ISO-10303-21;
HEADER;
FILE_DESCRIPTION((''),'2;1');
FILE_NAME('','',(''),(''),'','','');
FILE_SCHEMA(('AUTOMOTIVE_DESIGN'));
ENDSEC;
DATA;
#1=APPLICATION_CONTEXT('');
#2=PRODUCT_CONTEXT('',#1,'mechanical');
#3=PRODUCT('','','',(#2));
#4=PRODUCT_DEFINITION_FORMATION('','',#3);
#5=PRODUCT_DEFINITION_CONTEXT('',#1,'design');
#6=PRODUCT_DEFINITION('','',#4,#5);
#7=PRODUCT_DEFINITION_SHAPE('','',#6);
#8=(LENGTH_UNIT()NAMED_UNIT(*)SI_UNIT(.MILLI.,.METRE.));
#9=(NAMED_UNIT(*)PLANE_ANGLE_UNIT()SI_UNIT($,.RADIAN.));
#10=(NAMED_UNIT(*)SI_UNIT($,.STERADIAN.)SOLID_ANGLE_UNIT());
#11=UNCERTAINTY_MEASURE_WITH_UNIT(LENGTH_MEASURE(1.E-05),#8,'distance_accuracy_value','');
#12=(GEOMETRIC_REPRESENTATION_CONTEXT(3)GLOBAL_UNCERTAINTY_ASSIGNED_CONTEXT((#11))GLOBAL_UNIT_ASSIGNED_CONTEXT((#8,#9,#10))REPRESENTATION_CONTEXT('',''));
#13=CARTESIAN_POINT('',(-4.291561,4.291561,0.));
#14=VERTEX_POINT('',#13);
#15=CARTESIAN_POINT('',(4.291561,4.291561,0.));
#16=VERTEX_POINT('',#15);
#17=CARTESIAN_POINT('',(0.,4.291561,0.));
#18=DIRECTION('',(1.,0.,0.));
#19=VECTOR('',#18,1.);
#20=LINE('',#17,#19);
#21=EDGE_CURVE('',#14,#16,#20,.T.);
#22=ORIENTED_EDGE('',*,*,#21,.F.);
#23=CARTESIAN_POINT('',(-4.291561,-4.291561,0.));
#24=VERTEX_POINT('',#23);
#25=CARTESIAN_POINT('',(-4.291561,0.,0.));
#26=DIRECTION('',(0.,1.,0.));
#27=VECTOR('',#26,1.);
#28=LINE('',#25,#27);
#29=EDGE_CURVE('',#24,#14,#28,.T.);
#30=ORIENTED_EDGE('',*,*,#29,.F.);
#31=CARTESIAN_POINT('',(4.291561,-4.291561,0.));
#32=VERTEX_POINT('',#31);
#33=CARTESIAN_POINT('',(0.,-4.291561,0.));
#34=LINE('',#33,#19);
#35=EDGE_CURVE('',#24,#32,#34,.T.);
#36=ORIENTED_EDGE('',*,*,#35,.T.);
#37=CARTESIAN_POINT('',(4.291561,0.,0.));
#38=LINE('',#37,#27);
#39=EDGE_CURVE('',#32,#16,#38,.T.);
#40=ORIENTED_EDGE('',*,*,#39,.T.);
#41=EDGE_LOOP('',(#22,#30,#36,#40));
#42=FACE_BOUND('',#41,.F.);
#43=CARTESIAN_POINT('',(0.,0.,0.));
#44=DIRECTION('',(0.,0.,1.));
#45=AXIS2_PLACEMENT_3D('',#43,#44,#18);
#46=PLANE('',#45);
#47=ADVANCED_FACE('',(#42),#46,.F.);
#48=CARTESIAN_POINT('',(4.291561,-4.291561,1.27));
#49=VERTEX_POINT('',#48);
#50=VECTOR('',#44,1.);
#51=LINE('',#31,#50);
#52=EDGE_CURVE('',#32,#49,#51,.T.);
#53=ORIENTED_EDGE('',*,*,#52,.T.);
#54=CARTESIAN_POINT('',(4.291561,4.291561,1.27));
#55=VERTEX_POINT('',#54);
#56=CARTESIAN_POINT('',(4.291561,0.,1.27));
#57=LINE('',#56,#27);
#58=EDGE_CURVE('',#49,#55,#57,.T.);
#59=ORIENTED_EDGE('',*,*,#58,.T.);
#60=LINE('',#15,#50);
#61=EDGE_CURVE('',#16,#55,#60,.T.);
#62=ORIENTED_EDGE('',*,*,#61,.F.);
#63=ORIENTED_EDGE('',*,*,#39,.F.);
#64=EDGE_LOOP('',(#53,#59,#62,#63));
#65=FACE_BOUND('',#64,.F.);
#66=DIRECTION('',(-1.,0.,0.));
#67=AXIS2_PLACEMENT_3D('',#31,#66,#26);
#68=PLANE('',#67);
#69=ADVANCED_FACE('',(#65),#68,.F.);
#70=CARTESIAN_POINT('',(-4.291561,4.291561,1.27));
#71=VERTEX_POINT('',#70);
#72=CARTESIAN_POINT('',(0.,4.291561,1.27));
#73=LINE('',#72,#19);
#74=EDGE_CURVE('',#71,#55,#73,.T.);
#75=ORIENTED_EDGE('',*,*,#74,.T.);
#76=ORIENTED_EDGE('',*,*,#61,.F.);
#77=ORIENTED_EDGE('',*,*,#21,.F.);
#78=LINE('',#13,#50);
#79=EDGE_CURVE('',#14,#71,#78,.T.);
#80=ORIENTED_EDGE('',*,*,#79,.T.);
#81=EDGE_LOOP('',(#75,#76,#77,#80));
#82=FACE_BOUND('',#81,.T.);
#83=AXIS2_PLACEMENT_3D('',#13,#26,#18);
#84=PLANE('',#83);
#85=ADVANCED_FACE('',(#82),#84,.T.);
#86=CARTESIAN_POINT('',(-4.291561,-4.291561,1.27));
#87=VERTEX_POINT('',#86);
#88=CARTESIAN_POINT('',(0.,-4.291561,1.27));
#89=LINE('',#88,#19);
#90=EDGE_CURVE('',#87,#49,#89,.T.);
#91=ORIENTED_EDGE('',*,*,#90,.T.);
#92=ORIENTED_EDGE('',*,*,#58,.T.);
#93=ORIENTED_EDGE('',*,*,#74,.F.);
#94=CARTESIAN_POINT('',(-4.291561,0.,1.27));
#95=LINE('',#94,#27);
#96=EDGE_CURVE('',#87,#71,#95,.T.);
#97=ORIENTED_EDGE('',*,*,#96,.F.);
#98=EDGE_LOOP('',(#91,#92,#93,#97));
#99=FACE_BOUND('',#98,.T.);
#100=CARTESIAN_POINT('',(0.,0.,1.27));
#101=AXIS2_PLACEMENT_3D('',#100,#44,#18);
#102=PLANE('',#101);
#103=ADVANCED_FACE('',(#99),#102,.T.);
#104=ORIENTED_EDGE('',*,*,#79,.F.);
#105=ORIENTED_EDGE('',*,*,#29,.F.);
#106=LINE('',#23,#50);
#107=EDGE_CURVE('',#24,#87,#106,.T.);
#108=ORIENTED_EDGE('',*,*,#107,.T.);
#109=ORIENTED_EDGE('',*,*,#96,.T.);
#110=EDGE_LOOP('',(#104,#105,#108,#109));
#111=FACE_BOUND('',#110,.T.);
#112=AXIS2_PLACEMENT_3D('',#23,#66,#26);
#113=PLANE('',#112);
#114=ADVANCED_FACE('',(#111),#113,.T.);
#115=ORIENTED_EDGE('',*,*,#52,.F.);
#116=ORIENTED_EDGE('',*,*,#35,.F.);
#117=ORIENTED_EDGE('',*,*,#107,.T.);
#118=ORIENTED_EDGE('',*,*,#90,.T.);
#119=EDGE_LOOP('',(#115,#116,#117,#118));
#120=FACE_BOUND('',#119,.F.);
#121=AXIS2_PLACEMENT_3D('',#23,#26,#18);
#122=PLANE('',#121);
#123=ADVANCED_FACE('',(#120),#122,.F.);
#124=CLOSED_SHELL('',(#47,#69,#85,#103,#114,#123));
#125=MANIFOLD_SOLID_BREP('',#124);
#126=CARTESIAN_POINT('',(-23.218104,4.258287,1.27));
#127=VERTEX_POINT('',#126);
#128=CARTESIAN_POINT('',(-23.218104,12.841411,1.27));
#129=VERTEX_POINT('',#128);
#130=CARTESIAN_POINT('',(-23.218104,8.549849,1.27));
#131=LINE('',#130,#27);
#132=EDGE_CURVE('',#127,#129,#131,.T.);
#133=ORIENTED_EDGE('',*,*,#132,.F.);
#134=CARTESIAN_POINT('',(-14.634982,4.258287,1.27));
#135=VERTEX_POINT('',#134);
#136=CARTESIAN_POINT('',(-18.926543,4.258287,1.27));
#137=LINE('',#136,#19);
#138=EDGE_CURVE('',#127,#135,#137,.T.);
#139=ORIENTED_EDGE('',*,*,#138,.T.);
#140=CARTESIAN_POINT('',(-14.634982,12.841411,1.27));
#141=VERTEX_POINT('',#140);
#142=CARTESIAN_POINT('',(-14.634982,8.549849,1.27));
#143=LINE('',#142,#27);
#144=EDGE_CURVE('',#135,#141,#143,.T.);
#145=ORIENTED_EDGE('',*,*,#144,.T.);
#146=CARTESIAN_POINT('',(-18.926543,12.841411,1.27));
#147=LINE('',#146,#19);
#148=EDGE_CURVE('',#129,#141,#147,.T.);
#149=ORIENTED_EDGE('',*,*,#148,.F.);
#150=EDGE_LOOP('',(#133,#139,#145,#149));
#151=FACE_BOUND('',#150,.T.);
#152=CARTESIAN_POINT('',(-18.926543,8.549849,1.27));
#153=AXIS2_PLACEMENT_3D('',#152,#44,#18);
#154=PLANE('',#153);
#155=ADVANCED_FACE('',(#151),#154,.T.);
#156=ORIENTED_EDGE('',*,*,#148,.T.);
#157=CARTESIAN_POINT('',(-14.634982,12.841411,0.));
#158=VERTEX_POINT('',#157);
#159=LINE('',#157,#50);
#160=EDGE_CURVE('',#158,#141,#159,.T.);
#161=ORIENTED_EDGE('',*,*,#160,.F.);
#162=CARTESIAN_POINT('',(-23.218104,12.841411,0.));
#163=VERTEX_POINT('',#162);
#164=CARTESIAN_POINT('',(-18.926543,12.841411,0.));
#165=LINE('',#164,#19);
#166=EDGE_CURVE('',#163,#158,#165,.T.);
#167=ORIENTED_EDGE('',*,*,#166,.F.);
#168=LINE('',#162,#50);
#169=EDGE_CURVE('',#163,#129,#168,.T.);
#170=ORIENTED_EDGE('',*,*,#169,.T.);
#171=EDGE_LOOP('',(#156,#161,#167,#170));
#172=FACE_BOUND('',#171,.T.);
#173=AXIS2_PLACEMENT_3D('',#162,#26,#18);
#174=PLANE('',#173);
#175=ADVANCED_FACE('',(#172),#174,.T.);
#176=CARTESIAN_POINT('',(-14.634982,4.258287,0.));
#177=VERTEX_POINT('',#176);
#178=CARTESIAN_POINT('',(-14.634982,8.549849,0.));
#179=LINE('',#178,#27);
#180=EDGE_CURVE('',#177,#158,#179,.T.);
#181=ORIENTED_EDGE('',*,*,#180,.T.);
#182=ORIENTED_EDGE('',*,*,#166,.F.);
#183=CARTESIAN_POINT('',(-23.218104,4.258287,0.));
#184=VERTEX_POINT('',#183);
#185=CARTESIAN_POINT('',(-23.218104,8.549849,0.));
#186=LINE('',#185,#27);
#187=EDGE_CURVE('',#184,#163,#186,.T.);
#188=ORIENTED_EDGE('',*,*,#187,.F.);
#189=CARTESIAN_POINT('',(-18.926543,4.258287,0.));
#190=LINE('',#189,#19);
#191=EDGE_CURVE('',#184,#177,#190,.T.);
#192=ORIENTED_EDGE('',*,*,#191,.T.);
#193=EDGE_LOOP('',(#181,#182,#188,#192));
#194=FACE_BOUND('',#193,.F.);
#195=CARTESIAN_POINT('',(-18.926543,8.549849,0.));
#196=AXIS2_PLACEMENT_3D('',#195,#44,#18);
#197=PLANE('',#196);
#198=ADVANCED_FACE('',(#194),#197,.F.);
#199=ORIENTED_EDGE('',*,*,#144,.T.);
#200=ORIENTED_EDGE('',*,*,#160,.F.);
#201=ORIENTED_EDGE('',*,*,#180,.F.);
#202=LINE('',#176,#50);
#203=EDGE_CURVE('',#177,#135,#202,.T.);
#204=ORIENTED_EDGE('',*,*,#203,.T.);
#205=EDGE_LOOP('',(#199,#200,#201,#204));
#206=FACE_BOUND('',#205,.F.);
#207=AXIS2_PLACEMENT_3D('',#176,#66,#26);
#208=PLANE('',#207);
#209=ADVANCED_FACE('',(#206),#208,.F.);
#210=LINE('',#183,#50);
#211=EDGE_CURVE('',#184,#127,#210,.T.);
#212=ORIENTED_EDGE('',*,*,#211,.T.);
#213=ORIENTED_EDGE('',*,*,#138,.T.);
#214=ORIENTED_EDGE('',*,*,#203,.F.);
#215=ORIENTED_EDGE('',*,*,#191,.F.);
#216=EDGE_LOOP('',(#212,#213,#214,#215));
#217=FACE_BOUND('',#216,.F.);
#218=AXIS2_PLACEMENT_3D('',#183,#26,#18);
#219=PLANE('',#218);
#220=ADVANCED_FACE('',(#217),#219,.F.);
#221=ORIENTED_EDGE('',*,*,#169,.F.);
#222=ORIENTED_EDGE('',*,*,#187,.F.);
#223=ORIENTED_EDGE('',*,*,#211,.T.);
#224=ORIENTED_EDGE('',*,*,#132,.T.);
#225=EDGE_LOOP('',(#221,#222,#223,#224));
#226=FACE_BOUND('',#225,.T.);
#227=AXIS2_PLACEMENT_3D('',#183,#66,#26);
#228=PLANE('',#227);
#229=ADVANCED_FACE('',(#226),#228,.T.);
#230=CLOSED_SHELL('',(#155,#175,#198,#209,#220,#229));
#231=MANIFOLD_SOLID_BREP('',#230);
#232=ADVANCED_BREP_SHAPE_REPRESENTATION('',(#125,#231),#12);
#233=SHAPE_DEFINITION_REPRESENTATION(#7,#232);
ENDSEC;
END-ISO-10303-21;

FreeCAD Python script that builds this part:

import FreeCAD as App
import Part
import Sketcher
from FreeCAD import Vector
Q = App.Units.Quantity


def add_polygon(sketch, points):
    """Adds a closed chain of lines whose ends are joined by coincident constraints."""
    first, n = sketch.GeometryCount, len(points)
    for a, b in zip(points, points[1:] + points[:1]):
        sketch.addGeometry(Part.LineSegment(App.Vector(*a, 0), App.Vector(*b, 0)), False)
    for i in range(n):
        sketch.addConstraint(Sketcher.Constraint("Coincident", first + i, 2, first + (i + 1) % n, 1))

doc = App.newDocument("Part")
body = doc.addObject("PartDesign::Body", "Body")
body.AllowCompound = True

# Sketch on XY plane
sketch1 = body.newObject("Sketcher::SketchObject", "Sketch")
sketch1.AttachmentSupport = (doc.getObject("XY_Plane"), [""])
sketch1.MapMode = "FlatFace"
add_polygon(sketch1, [(-23.218104, 12.841411), (-23.218104, 4.258287), (-14.634982, 4.258287), (-14.634982, 12.841411)])  # lines 0-3
add_polygon(sketch1, [(-4.291561, 4.291561), (-4.291561, -4.291561), (4.291561, -4.291561), (4.291561, 4.291561)])  # lines 4-7
sketch1.addConstraint([
    Sketcher.Constraint("Vertical", 0),
    Sketcher.Constraint("Horizontal", 1),
    Sketcher.Constraint("Vertical", 2),
    Sketcher.Constraint("Horizontal", 3),
    Sketcher.Constraint("Vertical", 4),
    Sketcher.Constraint("Horizontal", 5),
    Sketcher.Constraint("Vertical", 6),
    Sketcher.Constraint("Horizontal", 7),
    Sketcher.Constraint("Symmetric", 4, 2, 6, 2, -1, 1),
    Sketcher.Constraint("Equal", 3, 5),
    Sketcher.Constraint("Equal", 7, 0),
    Sketcher.Constraint("Equal", 2, 4),
    Sketcher.Constraint("DistanceX", 1, 1, 1, 2, Q("8.583123 mm")),
    Sketcher.Constraint("DistanceX", 1, 2, -1, 1, Q("14.634982 mm")),
    Sketcher.Constraint("DistanceY", -1, 1, 2, 2, Q("12.841411 mm")),
])
pad1 = body.newObject("PartDesign::Pad", "Pad")
pad1.Profile = sketch1
pad1.Length = Q("0.05 in")

doc.recompute()
